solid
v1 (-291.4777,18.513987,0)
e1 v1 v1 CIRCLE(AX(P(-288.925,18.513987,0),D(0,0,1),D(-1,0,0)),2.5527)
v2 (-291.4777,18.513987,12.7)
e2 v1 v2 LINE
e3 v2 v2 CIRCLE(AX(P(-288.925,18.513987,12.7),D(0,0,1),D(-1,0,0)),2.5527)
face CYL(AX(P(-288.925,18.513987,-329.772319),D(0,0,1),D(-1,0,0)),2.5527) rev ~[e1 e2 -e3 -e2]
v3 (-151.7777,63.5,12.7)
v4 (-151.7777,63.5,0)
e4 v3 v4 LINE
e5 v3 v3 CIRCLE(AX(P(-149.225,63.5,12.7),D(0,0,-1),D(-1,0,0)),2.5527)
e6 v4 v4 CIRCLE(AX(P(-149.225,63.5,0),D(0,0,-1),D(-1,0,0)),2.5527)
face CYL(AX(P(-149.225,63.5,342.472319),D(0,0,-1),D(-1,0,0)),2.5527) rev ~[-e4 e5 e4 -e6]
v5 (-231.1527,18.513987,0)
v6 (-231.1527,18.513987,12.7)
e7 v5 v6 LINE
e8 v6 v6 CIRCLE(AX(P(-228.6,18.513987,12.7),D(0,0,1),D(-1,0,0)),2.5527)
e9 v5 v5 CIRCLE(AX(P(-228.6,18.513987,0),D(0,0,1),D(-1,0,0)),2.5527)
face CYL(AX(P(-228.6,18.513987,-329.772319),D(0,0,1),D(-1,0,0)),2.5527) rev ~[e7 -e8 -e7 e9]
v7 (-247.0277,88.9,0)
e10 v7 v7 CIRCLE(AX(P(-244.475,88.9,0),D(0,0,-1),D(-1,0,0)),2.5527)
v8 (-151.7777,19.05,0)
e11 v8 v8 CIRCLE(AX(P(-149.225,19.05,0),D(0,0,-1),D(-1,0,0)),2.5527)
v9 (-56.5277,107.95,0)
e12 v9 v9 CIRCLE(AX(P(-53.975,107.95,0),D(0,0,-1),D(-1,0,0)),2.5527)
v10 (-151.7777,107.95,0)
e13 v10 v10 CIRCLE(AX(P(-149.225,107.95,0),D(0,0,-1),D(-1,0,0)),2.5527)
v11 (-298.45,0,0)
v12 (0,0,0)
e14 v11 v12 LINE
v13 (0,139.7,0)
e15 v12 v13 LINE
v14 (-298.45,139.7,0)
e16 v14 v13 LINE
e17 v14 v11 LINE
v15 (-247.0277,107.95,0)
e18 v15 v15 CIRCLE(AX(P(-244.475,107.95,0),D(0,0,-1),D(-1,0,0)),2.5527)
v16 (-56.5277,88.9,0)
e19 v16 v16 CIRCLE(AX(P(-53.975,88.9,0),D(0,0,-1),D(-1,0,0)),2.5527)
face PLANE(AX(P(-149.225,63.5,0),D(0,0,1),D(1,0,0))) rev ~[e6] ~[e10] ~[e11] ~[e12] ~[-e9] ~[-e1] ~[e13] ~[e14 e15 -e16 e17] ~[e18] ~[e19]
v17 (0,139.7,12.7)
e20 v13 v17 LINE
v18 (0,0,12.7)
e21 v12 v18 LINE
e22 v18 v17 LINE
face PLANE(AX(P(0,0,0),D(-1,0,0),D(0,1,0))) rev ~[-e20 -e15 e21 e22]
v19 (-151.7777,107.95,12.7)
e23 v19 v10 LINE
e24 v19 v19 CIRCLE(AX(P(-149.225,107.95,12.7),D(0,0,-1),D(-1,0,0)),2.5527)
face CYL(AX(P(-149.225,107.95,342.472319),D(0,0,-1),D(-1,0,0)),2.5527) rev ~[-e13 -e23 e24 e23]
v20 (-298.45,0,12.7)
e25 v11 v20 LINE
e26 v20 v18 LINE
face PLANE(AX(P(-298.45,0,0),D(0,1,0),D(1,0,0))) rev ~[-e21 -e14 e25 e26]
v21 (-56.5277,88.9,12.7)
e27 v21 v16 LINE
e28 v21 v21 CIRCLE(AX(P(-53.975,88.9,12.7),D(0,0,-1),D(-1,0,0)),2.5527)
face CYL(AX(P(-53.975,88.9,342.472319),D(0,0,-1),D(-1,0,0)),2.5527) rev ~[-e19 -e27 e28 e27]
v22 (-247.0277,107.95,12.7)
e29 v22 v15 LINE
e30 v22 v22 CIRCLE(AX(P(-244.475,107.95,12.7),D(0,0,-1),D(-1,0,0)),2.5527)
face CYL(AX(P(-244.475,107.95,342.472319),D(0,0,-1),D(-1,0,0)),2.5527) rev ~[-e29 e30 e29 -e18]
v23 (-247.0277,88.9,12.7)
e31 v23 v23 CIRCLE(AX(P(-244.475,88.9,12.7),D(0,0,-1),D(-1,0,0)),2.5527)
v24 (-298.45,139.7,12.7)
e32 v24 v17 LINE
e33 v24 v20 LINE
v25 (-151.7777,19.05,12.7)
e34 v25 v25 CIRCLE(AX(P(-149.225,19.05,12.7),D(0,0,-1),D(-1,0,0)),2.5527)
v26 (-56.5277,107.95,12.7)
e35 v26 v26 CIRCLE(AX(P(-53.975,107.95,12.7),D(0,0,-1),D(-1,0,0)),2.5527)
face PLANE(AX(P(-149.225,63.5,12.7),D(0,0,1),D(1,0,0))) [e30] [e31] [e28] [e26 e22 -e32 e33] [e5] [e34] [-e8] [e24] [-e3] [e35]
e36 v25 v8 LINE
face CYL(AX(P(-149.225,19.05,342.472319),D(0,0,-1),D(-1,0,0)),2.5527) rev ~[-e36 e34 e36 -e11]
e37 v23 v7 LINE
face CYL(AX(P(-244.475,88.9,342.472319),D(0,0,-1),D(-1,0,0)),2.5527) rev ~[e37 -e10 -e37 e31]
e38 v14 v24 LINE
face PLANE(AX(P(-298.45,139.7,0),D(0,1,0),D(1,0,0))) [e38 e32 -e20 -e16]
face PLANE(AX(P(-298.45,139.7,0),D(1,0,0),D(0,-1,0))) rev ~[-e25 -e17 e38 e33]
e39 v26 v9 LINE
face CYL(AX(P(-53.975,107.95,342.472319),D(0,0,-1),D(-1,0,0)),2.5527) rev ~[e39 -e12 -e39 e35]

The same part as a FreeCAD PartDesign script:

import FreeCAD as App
import Part
import Sketcher

V = App.Vector
Q = App.Units.Quantity

doc = App.newDocument("Part")
body = doc.addObject("PartDesign::Body", "Body")

# Sketch on XY plane
sketch1 = doc.addObject("Sketcher::SketchObject", "Sketch")
body.addObject(sketch1)
sketch1.AttachmentSupport = (doc.XY_Plane, [""])
sketch1.MapMode = "FlatFace"
sketch1.addGeometry([
    Part.LineSegment(V(-298, 0, 0), V(0, 0, 0)),
    Part.LineSegment(V(0, 0, 0), V(0, 140, 0)),
    Part.LineSegment(V(0, 140, 0), V(-298, 140, 0)),
    Part.LineSegment(V(-298, 140, 0), V(-298, 0, 0)),
], False)
sketch1.addConstraint([
    Sketcher.Constraint("Coincident", 0, 2, 1, 1),
    Sketcher.Constraint("Coincident", 1, 2, 2, 1),
    Sketcher.Constraint("Coincident", 2, 2, 3, 1),
    Sketcher.Constraint("Coincident", 3, 2, 0, 1),
    Sketcher.Constraint("Horizontal", 0),
    Sketcher.Constraint("Vertical", 1),
    Sketcher.Constraint("Horizontal", 2),
    Sketcher.Constraint("Vertical", 3),
    Sketcher.Constraint("Coincident", 0, 2, -1, 1),
    Sketcher.Constraint("DistanceY", 1, 1, 1, 2, Q("5.5 in")),
    Sketcher.Constraint("DistanceX", 0, 1, 0, 2, Q("11.75 in")),
])
pad1 = doc.addObject("PartDesign::Pad", "Pad")
body.addObject(pad1)
pad1.Profile = sketch1
pad1.Length = Q("0.5 in")

# Sketch on XY plane
sketch2 = doc.addObject("Sketcher::SketchObject", "Sketch001")
body.addObject(sketch2)
sketch2.AttachmentSupport = (doc.XY_Plane, [""])
sketch2.MapMode = "FlatFace"
sketch2.AttachmentOffset = App.Placement(V(0, 0, 0.5 * 25.4), App.Rotation())
sketch2.addGeometry([
    Part.Circle(V(-149.2, 108, 0), V(0, 0, 1), 2.6),
    Part.Circle(V(-149.2, 63.5, 0), V(0, 0, 1), 2.6),
    Part.Circle(V(-149.2, 19.1, 0), V(0, 0, 1), 2.6),
], False)
sketch2.addConstraint([
    Sketcher.Constraint("Equal", 0, 1),
    Sketcher.Constraint("Equal", 1, 2),
    Sketcher.Constraint("Vertical", 0, 3, 1, 3),
    Sketcher.Constraint("Vertical", 1, 3, 2, 3),
    Sketcher.Constraint("Diameter", 0, Q("0.201 in")),
    Sketcher.Constraint("DistanceY", -1, 1, 1, 3, Q("2.5 in")),
    Sketcher.Constraint("DistanceY", 2, 3, 0, 3, Q("3.5 in")),
    Sketcher.Constraint("DistanceY", -1, 1, 0, 3, Q("4.25 in")),
    Sketcher.Constraint("DistanceX", 0, 3, -1, 1, Q("5.875 in")),
])
doc.recompute()
hole = doc.addObject("PartDesign::Hole", "Hole")
body.addObject(hole)
hole.Profile = sketch2
hole.ThreadType = "None"
hole.Diameter = Q("0.201 in")
hole.DepthType = "ThroughAll"

# Sketch on XY plane
sketch3 = doc.addObject("Sketcher::SketchObject", "Sketch002")
body.addObject(sketch3)
sketch3.AttachmentSupport = (doc.XY_Plane, [""])
sketch3.MapMode = "FlatFace"
sketch3.AttachmentOffset = App.Placement(V(0, 0, 0.5 * 25.4), App.Rotation())
sketch3.addGeometry([
    Part.Circle(V(-54, 88.9, 0), V(0, 0, 1), 2.6),
    Part.Circle(V(-54, 108, 0), V(0, 0, 1), 2.6),
    Part.Circle(V(-244.5, 88.9, 0), V(0, 0, 1), 2.6),
    Part.Circle(V(-244.5, 108, 0), V(0, 0, 1), 2.6),
], False)
sketch3.addConstraint([
    Sketcher.Constraint("Equal", 0, 1),
    Sketcher.Constraint("Equal", 1, 2),
    Sketcher.Constraint("Equal", 2, 3),
    Sketcher.Constraint("Horizontal", 0, 3, 2, 3),
    Sketcher.Constraint("Horizontal", 1, 3, 3, 3),
    Sketcher.Constraint("Vertical", 0, 3, 1, 3),
    Sketcher.Constraint("Vertical", 2, 3, 3, 3),
    Sketcher.Constraint("Diameter", 0, Q("0.201 in")),
    Sketcher.Constraint("DistanceY", -1, 1, 0, 3, Q("3.5 in")),
    Sketcher.Constraint("DistanceX", 2, 3, 0, 3, Q("7.5 in")),
    Sketcher.Constraint("DistanceY", -1, 1, 1, 3, Q("4.25 in")),
    Sketcher.Constraint("DistanceX", 0, 3, -1, 1, Q("2.125 in")),
])
doc.recompute()
hole2 = doc.addObject("PartDesign::Hole", "Hole001")
body.addObject(hole2)
hole2.Profile = sketch3
hole2.ThreadType = "None"
hole2.Diameter = Q("0.201 in")
hole2.DepthType = "ThroughAll"

# Sketch on XY plane
sketch4 = doc.addObject("Sketcher::SketchObject", "Sketch003")
body.addObject(sketch4)
sketch4.AttachmentSupport = (doc.XY_Plane, [""])
sketch4.MapMode = "FlatFace"
sketch4.addGeometry([
    Part.Circle(V(-288.9, 18.5, 0), V(0, 0, 1), 2.6),
    Part.Circle(V(-228.6, 18.5, 0), V(0, 0, 1), 2.6),
], False)
sketch4.addConstraint([
    Sketcher.Constraint("Equal", 0, 1),
    Sketcher.Constraint("Horizontal", 0, 3, 1, 3),
    Sketcher.Constraint("Diameter", 0, Q("0.201 in")),
    Sketcher.Constraint("DistanceX", 1, 3, -1, 1, Q("9 in")),
    Sketcher.Constraint("DistanceX", 0, 3, -1, 1, Q("11.375 in")),
    Sketcher.Constraint("DistanceY", -1, 1, 0, 3, 18.513987),
])
doc.recompute()
hole3 = doc.addObject("PartDesign::Hole", "Hole002")
body.addObject(hole3)
hole3.Profile = sketch4
hole3.ThreadType = "None"
hole3.Diameter = Q("0.201 in")
hole3.DepthType = "ThroughAll"
hole3.Reversed = True

doc.recompute()
